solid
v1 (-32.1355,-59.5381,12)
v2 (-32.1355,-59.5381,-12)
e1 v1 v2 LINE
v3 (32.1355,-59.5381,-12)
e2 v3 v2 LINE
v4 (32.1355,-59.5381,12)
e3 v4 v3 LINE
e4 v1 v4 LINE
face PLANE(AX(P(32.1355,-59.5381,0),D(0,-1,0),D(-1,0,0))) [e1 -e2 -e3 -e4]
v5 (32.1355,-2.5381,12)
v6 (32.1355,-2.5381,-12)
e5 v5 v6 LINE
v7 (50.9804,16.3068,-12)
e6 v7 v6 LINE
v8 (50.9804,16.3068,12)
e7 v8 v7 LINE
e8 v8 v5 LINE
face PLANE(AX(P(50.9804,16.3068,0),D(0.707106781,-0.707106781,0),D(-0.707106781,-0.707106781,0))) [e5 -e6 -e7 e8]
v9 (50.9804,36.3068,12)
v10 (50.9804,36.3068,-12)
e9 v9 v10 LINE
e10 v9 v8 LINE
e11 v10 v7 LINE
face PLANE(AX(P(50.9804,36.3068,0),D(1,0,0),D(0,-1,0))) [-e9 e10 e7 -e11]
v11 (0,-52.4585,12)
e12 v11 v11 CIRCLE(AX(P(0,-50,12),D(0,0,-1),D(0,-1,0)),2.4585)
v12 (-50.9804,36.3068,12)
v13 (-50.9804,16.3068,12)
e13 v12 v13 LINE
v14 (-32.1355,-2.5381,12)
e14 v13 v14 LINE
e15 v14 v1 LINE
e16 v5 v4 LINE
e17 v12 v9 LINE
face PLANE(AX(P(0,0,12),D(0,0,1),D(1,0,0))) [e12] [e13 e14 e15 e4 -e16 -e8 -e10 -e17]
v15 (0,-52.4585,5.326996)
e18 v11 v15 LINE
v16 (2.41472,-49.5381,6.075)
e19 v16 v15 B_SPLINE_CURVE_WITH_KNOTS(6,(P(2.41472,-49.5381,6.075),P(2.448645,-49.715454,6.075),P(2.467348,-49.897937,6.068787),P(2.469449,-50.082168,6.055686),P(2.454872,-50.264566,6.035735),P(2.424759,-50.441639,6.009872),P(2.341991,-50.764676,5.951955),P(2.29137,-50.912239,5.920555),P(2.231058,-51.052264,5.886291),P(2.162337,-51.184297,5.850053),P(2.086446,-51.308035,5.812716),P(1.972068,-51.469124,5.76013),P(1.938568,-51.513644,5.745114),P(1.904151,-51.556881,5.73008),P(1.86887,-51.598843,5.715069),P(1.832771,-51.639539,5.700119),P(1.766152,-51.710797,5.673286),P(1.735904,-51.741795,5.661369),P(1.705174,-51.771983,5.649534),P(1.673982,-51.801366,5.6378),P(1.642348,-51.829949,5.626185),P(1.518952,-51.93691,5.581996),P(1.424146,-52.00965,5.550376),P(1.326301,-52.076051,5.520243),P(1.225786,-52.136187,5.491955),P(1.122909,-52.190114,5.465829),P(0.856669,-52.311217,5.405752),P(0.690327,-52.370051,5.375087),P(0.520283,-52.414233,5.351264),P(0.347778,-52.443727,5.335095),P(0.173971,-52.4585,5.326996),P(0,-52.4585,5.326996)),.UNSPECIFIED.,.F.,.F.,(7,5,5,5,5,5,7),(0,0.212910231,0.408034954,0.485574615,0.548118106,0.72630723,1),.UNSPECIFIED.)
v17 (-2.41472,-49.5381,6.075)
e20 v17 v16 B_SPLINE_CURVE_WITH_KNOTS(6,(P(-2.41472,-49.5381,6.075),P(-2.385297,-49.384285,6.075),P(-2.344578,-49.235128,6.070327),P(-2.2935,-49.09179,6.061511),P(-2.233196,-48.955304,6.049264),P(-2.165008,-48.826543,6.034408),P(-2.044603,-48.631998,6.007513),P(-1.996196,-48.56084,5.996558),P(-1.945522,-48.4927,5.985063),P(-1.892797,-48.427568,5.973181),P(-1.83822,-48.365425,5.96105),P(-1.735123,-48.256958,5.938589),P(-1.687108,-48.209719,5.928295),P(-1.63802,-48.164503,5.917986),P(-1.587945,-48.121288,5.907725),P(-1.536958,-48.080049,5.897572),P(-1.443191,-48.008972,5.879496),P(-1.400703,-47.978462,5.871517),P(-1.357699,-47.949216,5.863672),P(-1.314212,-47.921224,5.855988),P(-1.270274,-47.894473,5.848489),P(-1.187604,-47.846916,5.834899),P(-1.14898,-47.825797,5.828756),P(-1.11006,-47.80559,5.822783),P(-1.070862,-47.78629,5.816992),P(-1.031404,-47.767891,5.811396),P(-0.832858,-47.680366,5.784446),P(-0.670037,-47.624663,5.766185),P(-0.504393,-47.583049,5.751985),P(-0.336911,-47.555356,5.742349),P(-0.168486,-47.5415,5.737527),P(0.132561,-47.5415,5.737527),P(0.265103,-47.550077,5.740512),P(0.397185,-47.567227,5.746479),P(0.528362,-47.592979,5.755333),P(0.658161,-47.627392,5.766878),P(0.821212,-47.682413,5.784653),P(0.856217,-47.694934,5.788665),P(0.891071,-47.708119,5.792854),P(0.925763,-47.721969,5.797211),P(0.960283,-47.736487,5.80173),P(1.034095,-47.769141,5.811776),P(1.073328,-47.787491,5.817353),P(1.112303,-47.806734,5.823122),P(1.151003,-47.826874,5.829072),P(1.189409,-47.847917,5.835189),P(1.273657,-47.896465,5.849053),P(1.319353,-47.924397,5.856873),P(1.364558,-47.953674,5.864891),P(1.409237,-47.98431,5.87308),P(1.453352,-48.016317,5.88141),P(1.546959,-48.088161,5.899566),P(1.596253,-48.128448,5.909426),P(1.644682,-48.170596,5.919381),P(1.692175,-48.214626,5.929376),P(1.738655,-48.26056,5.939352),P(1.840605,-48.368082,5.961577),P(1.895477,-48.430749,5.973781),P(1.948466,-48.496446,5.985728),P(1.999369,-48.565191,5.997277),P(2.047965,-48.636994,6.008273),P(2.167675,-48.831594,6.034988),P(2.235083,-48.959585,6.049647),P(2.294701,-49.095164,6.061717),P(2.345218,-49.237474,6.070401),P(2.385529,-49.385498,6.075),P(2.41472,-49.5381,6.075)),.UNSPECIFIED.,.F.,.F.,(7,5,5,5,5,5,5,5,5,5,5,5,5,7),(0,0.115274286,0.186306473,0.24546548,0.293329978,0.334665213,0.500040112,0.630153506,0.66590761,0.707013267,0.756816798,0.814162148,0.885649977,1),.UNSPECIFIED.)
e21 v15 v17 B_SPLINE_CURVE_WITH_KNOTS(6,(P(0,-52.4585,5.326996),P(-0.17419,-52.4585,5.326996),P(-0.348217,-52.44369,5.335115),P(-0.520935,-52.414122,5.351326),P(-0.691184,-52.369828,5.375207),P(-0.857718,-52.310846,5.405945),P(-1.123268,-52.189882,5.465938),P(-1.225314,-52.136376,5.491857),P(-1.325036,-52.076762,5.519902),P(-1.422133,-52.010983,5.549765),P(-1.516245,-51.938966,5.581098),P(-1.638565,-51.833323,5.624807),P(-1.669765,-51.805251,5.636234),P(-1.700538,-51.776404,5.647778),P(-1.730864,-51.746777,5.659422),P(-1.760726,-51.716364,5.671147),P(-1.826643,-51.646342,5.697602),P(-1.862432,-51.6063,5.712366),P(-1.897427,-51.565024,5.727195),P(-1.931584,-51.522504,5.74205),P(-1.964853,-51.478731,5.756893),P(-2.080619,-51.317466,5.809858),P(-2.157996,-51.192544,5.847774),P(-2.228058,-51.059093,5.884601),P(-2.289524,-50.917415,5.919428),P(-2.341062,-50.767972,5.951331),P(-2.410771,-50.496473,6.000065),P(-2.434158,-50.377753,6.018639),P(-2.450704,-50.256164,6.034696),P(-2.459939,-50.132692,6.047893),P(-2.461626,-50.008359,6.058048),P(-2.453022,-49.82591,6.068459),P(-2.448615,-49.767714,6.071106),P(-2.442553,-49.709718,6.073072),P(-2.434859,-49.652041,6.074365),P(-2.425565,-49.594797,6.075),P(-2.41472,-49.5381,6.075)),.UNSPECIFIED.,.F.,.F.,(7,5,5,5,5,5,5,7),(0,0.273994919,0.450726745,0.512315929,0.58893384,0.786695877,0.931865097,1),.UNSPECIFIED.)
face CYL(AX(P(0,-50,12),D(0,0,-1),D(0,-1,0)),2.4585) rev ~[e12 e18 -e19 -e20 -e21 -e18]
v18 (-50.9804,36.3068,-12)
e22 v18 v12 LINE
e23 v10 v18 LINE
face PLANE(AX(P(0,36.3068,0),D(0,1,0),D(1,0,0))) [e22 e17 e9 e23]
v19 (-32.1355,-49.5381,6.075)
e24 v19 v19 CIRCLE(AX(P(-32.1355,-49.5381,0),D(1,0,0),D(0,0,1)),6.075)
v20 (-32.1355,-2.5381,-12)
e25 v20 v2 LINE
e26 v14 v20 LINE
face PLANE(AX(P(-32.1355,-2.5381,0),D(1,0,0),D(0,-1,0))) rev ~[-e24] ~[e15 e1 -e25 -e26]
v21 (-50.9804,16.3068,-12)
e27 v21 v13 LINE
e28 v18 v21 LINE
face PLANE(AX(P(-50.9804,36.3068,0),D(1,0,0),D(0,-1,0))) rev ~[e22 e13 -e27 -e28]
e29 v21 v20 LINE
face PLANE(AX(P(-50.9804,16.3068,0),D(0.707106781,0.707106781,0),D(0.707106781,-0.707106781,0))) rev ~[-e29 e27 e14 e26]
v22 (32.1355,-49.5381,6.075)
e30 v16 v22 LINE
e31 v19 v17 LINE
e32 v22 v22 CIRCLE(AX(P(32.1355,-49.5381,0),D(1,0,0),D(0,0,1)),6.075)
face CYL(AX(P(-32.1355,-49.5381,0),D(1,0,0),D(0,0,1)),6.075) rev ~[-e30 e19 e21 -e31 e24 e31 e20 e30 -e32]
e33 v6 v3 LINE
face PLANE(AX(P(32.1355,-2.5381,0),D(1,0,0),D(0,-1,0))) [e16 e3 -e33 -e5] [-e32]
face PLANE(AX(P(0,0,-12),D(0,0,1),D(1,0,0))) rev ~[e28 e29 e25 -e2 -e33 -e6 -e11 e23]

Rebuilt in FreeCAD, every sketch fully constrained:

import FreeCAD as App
import Part
import Sketcher
from FreeCAD import Vector

doc = App.newDocument("Part")
body = doc.addObject("PartDesign::Body", "Body")

# Sketch on XY plane
sketch1 = doc.addObject("Sketcher::SketchObject", "Sketch")
body.addObject(sketch1)
sketch1.AttachmentSupport = (doc.XY_Plane, [""])
sketch1.MapMode = "FlatFace"
sketch1.addGeometry(Part.LineSegment(Vector(51, 36, 0), Vector(-51, 36, 0)), False)
sketch1.addGeometry(Part.LineSegment(Vector(-51, 36, 0), Vector(-51, 16, 0)), False)
sketch1.addGeometry(Part.LineSegment(Vector(-51, 16, 0), Vector(-32, -3, 0)), False)
sketch1.addGeometry(Part.LineSegment(Vector(-32, -3, 0), Vector(-32, -60, 0)), False)
sketch1.addGeometry(Part.LineSegment(Vector(-32, -60, 0), Vector(32, -60, 0)), False)
sketch1.addGeometry(Part.LineSegment(Vector(32, -60, 0), Vector(32, -3, 0)), False)
sketch1.addGeometry(Part.LineSegment(Vector(32, -3, 0), Vector(51, 16, 0)), False)
sketch1.addGeometry(Part.LineSegment(Vector(51, 16, 0), Vector(51, 36, 0)), False)
sketch1.addConstraint(Sketcher.Constraint("Coincident", 0, 2, 1, 1))
sketch1.addConstraint(Sketcher.Constraint("Coincident", 1, 2, 2, 1))
sketch1.addConstraint(Sketcher.Constraint("Coincident", 2, 2, 3, 1))
sketch1.addConstraint(Sketcher.Constraint("Coincident", 3, 2, 4, 1))
sketch1.addConstraint(Sketcher.Constraint("Coincident", 4, 2, 5, 1))
sketch1.addConstraint(Sketcher.Constraint("Coincident", 5, 2, 6, 1))
sketch1.addConstraint(Sketcher.Constraint("Coincident", 6, 2, 7, 1))
sketch1.addConstraint(Sketcher.Constraint("Coincident", 7, 2, 0, 1))
sketch1.addConstraint(Sketcher.Constraint("Horizontal", 0))
sketch1.addConstraint(Sketcher.Constraint("Vertical", 1))
sketch1.addConstraint(Sketcher.Constraint("Vertical", 3))
sketch1.addConstraint(Sketcher.Constraint("Horizontal", 4))
sketch1.addConstraint(Sketcher.Constraint("Vertical", 5))
sketch1.addConstraint(Sketcher.Constraint("Vertical", 7))
sketch1.addConstraint(Sketcher.Constraint("Symmetric", 2, 2, 5, 2, -2))
sketch1.addConstraint(Sketcher.Constraint("Symmetric", 1, 2, 6, 2, -2))
sketch1.addConstraint(Sketcher.Constraint("Perpendicular", 2, 6))
sketch1.addConstraint(Sketcher.Constraint("DistanceY", 1, 2, 1, 1, 20.0))
sketch1.addConstraint(Sketcher.Constraint("DistanceY", 3, 2, 3, 1, 57.0))
sketch1.addConstraint(Sketcher.Constraint("DistanceX", 0, 2, -1, 1, 50.9804))
sketch1.addConstraint(Sketcher.Constraint("DistanceX", 2, 2, -1, 1, 32.1355))
sketch1.addConstraint(Sketcher.Constraint("DistanceY", 2, 2, -1, 1, 2.538))
pad1 = doc.addObject("PartDesign::Pad", "Pad")
body.addObject(pad1)
pad1.Profile = sketch1
pad1.Length = 24
pad1.Midplane = True

# Sketch on YZ plane
sketch2 = doc.addObject("Sketcher::SketchObject", "Sketch001")
body.addObject(sketch2)
sketch2.AttachmentSupport = (doc.YZ_Plane, [""])
sketch2.MapMode = "FlatFace"
sketch2.AttachmentOffset = App.Placement(Vector(0, 0, -32.1355), App.Rotation())
sketch2.addGeometry(Part.Circle(Vector(-50, 0, 0), Vector(0, 0, 1), 6), False)
sketch2.addConstraint(Sketcher.Constraint("PointOnObject", 0, 3, -1))
sketch2.addConstraint(Sketcher.Constraint("Diameter", 0, 12.15))
sketch2.addConstraint(Sketcher.Constraint("DistanceX", 0, 3, -1, 1, 49.538))
doc.recompute()
hole = doc.addObject("PartDesign::Hole", "Hole")
body.addObject(hole)
hole.Profile = sketch2
hole.ThreadType = "None"
hole.Diameter = 12.15
hole.DepthType = "ThroughAll"
hole.Reversed = True

# Sketch on XY plane
sketch3 = doc.addObject("Sketcher::SketchObject", "Sketch002")
body.addObject(sketch3)
sketch3.AttachmentSupport = (doc.XY_Plane, [""])
sketch3.MapMode = "FlatFace"
sketch3.AttachmentOffset = App.Placement(Vector(0, 0, 12), App.Rotation())
sketch3.addGeometry(Part.Circle(Vector(0, -50, 0), Vector(0, 0, 1), 2.5), False)
sketch3.addConstraint(Sketcher.Constraint("PointOnObject", 0, 3, -2))
sketch3.addConstraint(Sketcher.Constraint("Diameter", 0, 4.917))
sketch3.addConstraint(Sketcher.Constraint("DistanceY", 0, 3, -1, 1, 50.0))
doc.recompute()
hole2 = doc.addObject("PartDesign::Hole", "Hole001")
body.addObject(hole2)
hole2.Profile = sketch3
hole2.ThreadType = "None"
hole2.Diameter = 4.917
hole2.DepthType = "Dimension"
hole2.Depth = 10
hole2.DrillPoint = "Angled"
hole2.DrillPointAngle = 118

doc.recompute()
